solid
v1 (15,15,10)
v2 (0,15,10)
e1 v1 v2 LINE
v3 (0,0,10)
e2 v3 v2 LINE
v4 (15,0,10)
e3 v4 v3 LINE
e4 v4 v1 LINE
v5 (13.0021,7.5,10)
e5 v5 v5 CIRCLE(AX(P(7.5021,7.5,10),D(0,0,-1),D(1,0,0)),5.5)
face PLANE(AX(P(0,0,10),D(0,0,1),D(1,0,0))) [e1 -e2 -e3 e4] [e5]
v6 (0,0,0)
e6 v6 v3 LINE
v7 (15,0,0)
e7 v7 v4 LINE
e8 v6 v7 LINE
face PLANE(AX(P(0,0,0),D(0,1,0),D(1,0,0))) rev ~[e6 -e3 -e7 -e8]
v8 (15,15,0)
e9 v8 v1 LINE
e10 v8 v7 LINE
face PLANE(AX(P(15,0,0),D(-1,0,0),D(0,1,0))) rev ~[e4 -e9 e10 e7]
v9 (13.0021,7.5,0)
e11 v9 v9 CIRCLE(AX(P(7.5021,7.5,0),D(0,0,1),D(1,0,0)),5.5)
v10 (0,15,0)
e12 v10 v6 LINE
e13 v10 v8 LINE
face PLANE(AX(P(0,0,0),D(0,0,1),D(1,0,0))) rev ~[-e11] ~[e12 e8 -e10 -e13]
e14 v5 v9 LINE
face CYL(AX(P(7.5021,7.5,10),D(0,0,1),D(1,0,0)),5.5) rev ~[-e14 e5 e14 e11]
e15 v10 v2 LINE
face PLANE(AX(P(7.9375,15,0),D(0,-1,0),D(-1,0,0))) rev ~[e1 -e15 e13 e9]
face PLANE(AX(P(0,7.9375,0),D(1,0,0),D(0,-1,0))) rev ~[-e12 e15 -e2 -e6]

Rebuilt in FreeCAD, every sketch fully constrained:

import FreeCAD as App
import Part
import Sketcher

V = App.Vector


def add_polygon(sketch, points):
    """Adds a closed chain of lines whose ends are joined by coincident constraints."""
    first, n = sketch.GeometryCount, len(points)
    for a, b in zip(points, points[1:] + points[:1]):
        sketch.addGeometry(Part.LineSegment(App.Vector(*a, 0), App.Vector(*b, 0)), False)
    for i in range(n):
        sketch.addConstraint(Sketcher.Constraint("Coincident", first + i, 2, first + (i + 1) % n, 1))

doc = App.newDocument("Part")
body = doc.addObject("PartDesign::Body", "Body")

sketch1 = body.newObject("Sketcher::SketchObject", "Sketch")
sketch1.AttachmentSupport = (doc.getObject("XY_Plane"), [""])
sketch1.MapMode = "FlatFace"
add_polygon(sketch1, [(0, 0), (15, 0), (15, 15), (0, 15)])
sketch1.addConstraint(Sketcher.Constraint("Horizontal", 0))
sketch1.addConstraint(Sketcher.Constraint("Vertical", 1))
sketch1.addConstraint(Sketcher.Constraint("Horizontal", 2))
sketch1.addConstraint(Sketcher.Constraint("Vertical", 3))
sketch1.addConstraint(Sketcher.Constraint("Coincident", 3, 2, -1, 1))
sketch1.addConstraint(Sketcher.Constraint("Equal", 2, 1))
sketch1.addConstraint(Sketcher.Constraint("DistanceX", 0, 1, 0, 2, 15.0))
pad1 = body.newObject("PartDesign::Pad", "Pad")
pad1.Profile = sketch1
pad1.Length = 10

sketch2 = body.newObject("Sketcher::SketchObject", "Sketch001")
sketch2.AttachmentSupport = (doc.getObject("XY_Plane"), [""])
sketch2.MapMode = "FlatFace"
sketch2.AttachmentOffset = App.Placement(V(0, 0, 10), App.Rotation())
sketch2.addGeometry(Part.Circle(V(8, 8, 0), V(0, 0, 1), 6), False)
sketch2.addConstraint(Sketcher.Constraint("Diameter", 0, 11.0))
sketch2.addConstraint(Sketcher.Constraint("DistanceY", -1, 1, 0, 3, 7.5))
sketch2.addConstraint(Sketcher.Constraint("DistanceX", -1, 1, 0, 3, 7.502))
pocket1 = body.newObject("PartDesign::Pocket", "Pocket")
pocket1.Profile = sketch2
pocket1.Type = "ThroughAll"
pocket1.Midplane = True

doc.recompute()
